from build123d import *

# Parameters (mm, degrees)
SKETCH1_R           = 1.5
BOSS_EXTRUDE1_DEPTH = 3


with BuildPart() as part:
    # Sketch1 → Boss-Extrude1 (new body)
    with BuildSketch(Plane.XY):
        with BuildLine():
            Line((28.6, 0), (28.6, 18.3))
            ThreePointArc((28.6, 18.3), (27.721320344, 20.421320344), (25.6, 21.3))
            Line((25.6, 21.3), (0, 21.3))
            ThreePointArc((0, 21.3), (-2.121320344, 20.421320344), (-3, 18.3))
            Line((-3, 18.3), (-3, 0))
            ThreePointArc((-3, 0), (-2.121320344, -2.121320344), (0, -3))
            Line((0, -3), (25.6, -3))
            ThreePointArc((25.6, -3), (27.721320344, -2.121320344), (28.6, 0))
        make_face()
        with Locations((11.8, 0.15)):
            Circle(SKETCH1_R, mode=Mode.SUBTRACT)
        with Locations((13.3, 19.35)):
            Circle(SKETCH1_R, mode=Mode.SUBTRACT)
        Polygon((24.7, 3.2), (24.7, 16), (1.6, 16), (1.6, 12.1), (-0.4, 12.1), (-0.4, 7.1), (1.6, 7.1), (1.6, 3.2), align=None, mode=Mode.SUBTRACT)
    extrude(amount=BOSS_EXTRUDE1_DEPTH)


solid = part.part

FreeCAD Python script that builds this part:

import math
import FreeCAD as App
import Part
import Sketcher


def add_polygon(sketch, points):
    """Adds a closed chain of lines whose ends are joined by coincident constraints."""
    first, n = sketch.GeometryCount, len(points)
    for a, b in zip(points, points[1:] + points[:1]):
        sketch.addGeometry(Part.LineSegment(App.Vector(*a, 0), App.Vector(*b, 0)), False)
    for i in range(n):
        sketch.addConstraint(Sketcher.Constraint("Coincident", first + i, 2, first + (i + 1) % n, 1))

doc = App.newDocument("Part")
body = doc.addObject("PartDesign::Body", "Body")

sketch1 = body.newObject("Sketcher::SketchObject", "Sketch")
sketch1.AttachmentSupport = (doc.getObject("XY_Plane"), [""])
sketch1.MapMode = "FlatFace"
sketch1.addGeometry(Part.LineSegment(App.Vector(28.6, 0, 0), App.Vector(28.6, 18.3, 0)), False)
sketch1.addGeometry(Part.ArcOfCircle(Part.Circle(App.Vector(25.6, 18.3, 0), App.Vector(0, 0, 1), 3), math.radians(0), math.radians(90)), False)
sketch1.addGeometry(Part.LineSegment(App.Vector(25.6, 21.3, 0), App.Vector(0, 21.3, 0)), False)
sketch1.addGeometry(Part.ArcOfCircle(Part.Circle(App.Vector(0, 18.3, 0), App.Vector(0, 0, 1), 3), math.radians(90), math.radians(180)), False)
sketch1.addGeometry(Part.LineSegment(App.Vector(-3, 18.3, 0), App.Vector(-3, 0, 0)), False)
sketch1.addGeometry(Part.ArcOfCircle(Part.Circle(App.Vector(0, 0, 0), App.Vector(0, 0, 1), 3), math.radians(180), math.radians(270)), False)
sketch1.addGeometry(Part.LineSegment(App.Vector(0, -3, 0), App.Vector(25.6, -3, 0)), False)
sketch1.addGeometry(Part.ArcOfCircle(Part.Circle(App.Vector(25.6, 0, 0), App.Vector(0, 0, 1), 3), math.radians(-90), math.radians(0)), False)
sketch1.addGeometry(Part.Circle(App.Vector(11.8, 0.15, 0), App.Vector(0, 0, 1), 1.5), False)
add_polygon(sketch1, [(24.7, 16), (24.7, 3.2), (1.6, 3.2), (1.6, 7.1), (-0.4, 7.1), (-0.4, 12.1), (1.6, 12.1), (1.6, 16)])
sketch1.addGeometry(Part.Circle(App.Vector(13.3, 19.35, 0), App.Vector(0, 0, 1), 1.5), False)
sketch1.addConstraint(Sketcher.Constraint("Tangent", 0, 2, 1, 1))
sketch1.addConstraint(Sketcher.Constraint("Tangent", 1, 2, 2, 1))
sketch1.addConstraint(Sketcher.Constraint("Tangent", 2, 2, 3, 1))
sketch1.addConstraint(Sketcher.Constraint("Tangent", 3, 2, 4, 1))
sketch1.addConstraint(Sketcher.Constraint("Tangent", 4, 2, 5, 1))
sketch1.addConstraint(Sketcher.Constraint("Tangent", 5, 2, 6, 1))
sketch1.addConstraint(Sketcher.Constraint("Tangent", 6, 2, 7, 1))
sketch1.addConstraint(Sketcher.Constraint("Tangent", 7, 2, 0, 1))
sketch1.addConstraint(Sketcher.Constraint("Vertical", 0))
sketch1.addConstraint(Sketcher.Constraint("Horizontal", 2))
sketch1.addConstraint(Sketcher.Constraint("Vertical", 4))
sketch1.addConstraint(Sketcher.Constraint("Horizontal", 6))
sketch1.addConstraint(Sketcher.Constraint("Vertical", 9))
sketch1.addConstraint(Sketcher.Constraint("Horizontal", 10))
sketch1.addConstraint(Sketcher.Constraint("Vertical", 11))
sketch1.addConstraint(Sketcher.Constraint("Horizontal", 12))
sketch1.addConstraint(Sketcher.Constraint("Vertical", 13))
sketch1.addConstraint(Sketcher.Constraint("Horizontal", 14))
sketch1.addConstraint(Sketcher.Constraint("Vertical", 15))
sketch1.addConstraint(Sketcher.Constraint("Horizontal", 16))
sketch1.addConstraint(Sketcher.Constraint("Coincident", 5, 3, -1, 1))
sketch1.addConstraint(Sketcher.Constraint("Equal", 1, 3))
sketch1.addConstraint(Sketcher.Constraint("Equal", 3, 5))
sketch1.addConstraint(Sketcher.Constraint("Equal", 5, 7))
sketch1.addConstraint(Sketcher.Constraint("Equal", 8, 17))
sketch1.addConstraint(Sketcher.Constraint("Vertical", 11, 2, 14, 2))
sketch1.addConstraint(Sketcher.Constraint("Equal", 11, 15))
sketch1.addConstraint(Sketcher.Constraint("Diameter", 8, 3.0))
sketch1.addConstraint(Sketcher.Constraint("Radius", 1, 3.0))
sketch1.addConstraint(Sketcher.Constraint("DistanceX", 12, 2, 12, 1, 2.0))
sketch1.addConstraint(Sketcher.Constraint("DistanceY", 13, 1, 13, 2, 5.0))
sketch1.addConstraint(Sketcher.Constraint("DistanceX", 2, 2, 2, 1, 25.6))
sketch1.addConstraint(Sketcher.Constraint("DistanceX", 10, 2, 10, 1, 23.1))
sketch1.addConstraint(Sketcher.Constraint("DistanceY", 0, 1, 0, 2, 18.3))
sketch1.addConstraint(Sketcher.Constraint("DistanceY", 9, 2, 9, 1, 12.8))
sketch1.addConstraint(Sketcher.Constraint("DistanceY", -1, 1, 15, 2, 16.0))
sketch1.addConstraint(Sketcher.Constraint("DistanceX", -1, 1, 8, 3, 11.8))
sketch1.addConstraint(Sketcher.Constraint("DistanceX", -1, 1, 17, 3, 13.3))
sketch1.addConstraint(Sketcher.Constraint("DistanceX", -1, 1, 9, 2, 24.7))
sketch1.addConstraint(Sketcher.Constraint("DistanceY", 8, 3, 17, 3, 19.2))
sketch1.addConstraint(Sketcher.Constraint("DistanceY", -1, 1, 8, 3, 0.15))
pad1 = body.newObject("PartDesign::Pad", "Pad")
pad1.Profile = sketch1
pad1.Length = 3

doc.recompute()
